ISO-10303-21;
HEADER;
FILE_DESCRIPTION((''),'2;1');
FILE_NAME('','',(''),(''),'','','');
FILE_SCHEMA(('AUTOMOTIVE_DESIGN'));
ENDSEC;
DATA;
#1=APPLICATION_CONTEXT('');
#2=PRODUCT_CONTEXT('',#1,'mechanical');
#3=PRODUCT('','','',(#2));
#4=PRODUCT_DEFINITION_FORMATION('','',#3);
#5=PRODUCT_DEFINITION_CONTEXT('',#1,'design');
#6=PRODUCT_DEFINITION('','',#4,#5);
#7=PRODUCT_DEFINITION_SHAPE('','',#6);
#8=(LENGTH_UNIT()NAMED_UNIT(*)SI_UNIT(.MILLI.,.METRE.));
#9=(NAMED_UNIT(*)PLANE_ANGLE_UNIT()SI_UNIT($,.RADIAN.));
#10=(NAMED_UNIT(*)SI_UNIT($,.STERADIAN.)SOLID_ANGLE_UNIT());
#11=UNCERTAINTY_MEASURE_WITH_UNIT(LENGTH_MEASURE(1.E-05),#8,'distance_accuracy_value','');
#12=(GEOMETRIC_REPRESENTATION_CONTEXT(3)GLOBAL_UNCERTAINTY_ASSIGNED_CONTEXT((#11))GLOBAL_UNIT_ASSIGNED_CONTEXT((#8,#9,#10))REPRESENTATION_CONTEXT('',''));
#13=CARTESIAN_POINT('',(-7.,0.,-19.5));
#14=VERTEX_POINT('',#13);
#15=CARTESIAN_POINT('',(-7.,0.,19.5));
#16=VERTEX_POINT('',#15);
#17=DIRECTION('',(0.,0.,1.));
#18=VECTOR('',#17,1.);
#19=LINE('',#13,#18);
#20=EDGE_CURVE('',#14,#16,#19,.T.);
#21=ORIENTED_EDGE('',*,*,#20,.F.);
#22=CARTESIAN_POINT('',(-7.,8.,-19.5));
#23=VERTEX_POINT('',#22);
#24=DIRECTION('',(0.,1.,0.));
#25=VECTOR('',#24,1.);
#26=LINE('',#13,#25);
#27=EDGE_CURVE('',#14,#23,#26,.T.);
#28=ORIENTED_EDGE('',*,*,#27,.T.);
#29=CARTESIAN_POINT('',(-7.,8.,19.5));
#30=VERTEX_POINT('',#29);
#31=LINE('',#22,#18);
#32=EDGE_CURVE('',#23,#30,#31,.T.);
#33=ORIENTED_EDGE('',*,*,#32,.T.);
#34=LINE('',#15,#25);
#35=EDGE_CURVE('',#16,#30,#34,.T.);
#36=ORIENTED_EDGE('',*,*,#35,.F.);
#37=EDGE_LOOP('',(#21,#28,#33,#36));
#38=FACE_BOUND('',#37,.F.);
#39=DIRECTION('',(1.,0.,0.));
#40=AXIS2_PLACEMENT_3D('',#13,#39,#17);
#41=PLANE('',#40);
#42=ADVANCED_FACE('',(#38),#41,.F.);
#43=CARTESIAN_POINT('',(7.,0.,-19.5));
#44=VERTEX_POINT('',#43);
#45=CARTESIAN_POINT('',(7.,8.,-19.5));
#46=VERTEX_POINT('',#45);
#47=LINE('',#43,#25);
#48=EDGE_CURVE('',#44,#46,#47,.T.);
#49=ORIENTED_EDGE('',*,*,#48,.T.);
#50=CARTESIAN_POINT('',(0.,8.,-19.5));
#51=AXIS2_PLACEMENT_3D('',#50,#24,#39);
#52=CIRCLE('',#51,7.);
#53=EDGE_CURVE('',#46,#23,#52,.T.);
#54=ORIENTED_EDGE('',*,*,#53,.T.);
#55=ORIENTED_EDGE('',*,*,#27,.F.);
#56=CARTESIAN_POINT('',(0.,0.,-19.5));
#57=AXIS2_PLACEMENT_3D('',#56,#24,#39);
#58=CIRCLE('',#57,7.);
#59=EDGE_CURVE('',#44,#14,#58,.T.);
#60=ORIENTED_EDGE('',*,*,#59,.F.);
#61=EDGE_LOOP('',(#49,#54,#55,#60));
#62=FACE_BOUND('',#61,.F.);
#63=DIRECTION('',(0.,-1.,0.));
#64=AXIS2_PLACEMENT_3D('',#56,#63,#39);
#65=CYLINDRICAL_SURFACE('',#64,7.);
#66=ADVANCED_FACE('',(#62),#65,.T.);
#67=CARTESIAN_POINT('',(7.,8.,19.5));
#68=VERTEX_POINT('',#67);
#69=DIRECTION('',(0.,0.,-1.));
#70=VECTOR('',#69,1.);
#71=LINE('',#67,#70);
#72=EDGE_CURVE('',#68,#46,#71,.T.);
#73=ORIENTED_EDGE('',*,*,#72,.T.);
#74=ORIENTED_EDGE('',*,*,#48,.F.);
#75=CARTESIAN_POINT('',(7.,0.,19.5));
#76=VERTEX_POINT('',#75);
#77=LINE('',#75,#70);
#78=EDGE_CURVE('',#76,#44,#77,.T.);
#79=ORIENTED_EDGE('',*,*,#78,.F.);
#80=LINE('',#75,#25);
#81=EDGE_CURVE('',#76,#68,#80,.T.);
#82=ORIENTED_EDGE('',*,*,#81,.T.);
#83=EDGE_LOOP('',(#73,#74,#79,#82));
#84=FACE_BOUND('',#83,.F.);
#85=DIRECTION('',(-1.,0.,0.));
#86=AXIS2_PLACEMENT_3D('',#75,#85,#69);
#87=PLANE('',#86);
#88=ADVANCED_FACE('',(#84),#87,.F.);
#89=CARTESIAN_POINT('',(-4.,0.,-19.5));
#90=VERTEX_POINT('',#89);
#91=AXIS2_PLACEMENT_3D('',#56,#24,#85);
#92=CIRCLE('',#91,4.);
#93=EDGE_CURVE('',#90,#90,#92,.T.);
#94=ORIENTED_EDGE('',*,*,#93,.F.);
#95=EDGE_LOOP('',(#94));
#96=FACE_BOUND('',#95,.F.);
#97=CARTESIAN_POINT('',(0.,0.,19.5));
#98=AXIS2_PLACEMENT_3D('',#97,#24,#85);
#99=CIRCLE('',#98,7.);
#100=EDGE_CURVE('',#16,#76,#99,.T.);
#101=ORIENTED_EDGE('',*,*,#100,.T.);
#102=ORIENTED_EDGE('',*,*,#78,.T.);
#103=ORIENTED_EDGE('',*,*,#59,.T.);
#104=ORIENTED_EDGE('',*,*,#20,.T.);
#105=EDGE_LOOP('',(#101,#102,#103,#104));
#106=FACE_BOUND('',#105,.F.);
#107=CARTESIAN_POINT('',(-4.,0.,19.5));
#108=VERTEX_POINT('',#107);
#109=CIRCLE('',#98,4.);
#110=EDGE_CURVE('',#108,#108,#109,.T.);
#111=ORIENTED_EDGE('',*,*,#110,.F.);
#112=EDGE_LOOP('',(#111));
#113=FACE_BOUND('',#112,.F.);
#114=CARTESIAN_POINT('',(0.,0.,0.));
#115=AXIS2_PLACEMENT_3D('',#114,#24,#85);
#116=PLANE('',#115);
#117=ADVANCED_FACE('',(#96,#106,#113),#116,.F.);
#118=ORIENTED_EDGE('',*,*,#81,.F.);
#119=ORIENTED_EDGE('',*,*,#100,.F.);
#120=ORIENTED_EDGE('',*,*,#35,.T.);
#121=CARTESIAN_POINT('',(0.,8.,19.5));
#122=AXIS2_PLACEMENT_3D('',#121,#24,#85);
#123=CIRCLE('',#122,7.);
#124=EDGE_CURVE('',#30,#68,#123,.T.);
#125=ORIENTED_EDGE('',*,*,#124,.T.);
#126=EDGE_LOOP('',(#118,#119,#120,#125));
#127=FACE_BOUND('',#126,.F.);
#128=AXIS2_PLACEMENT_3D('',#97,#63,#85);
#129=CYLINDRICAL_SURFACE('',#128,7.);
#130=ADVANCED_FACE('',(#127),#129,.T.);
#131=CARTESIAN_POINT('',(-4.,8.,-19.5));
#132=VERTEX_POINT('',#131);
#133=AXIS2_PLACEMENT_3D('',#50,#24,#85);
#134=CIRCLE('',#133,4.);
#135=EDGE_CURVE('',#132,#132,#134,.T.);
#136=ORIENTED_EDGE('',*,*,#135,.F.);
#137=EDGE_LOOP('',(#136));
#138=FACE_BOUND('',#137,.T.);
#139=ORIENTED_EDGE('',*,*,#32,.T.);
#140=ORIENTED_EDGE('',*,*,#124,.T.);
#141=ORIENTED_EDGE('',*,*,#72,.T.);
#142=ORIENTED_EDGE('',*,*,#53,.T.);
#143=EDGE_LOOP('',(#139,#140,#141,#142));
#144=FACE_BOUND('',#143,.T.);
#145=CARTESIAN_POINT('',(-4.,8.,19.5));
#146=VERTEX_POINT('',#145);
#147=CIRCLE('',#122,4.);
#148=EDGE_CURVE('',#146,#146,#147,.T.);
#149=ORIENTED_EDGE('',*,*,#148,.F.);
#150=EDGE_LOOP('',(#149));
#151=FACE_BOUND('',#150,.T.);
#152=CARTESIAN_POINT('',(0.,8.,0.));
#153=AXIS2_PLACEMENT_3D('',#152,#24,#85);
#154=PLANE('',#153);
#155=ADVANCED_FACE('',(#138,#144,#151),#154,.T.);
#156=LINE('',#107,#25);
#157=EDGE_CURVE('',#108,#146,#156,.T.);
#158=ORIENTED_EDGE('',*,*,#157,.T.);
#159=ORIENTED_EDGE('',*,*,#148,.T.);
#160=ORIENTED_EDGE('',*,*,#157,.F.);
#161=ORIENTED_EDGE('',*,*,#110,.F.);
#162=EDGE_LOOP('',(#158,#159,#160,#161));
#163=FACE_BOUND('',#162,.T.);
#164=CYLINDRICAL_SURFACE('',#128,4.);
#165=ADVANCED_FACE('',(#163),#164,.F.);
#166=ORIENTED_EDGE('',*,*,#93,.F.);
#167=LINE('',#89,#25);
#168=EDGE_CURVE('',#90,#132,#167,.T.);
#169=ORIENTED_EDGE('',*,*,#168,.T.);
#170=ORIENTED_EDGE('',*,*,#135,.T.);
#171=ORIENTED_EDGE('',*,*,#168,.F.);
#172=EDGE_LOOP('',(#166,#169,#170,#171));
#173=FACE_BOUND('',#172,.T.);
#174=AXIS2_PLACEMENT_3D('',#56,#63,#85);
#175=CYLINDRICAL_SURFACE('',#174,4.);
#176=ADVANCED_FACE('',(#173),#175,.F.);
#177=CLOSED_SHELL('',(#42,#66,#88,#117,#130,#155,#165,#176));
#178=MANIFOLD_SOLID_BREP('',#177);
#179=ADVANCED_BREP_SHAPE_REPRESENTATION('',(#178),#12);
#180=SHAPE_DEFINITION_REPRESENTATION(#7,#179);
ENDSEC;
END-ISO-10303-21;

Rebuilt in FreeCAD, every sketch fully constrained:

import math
import FreeCAD as App
import Part
import Sketcher
from FreeCAD import Vector
Q = App.Units.Quantity

doc = App.newDocument("Part")
body = doc.addObject("PartDesign::Body", "Body")

# Sketch on XZ plane
sketch1 = body.newObject("Sketcher::SketchObject", "Sketch")
sketch1.AttachmentSupport = (doc.getObject("XZ_Plane"), [""])
sketch1.MapMode = "FlatFace"
sketch1.addGeometry([
    Part.ArcOfCircle(Part.Circle(Vector(0, 19.5, 0), Vector(0, 0, 1), 7), math.radians(0), math.radians(180)),  # 0
    Part.LineSegment(Vector(7, 19.5, 0), Vector(7, -19.5, 0)),  # 1
    Part.ArcOfCircle(Part.Circle(Vector(0, -19.5, 0), Vector(0, 0, 1), 7), math.radians(180), math.radians(360)),  # 2
    Part.LineSegment(Vector(-7, -19.5, 0), Vector(-7, 19.5, 0)),  # 3
    Part.Circle(Vector(0, -19.5, 0), Vector(0, 0, 1), 4),  # 4
    Part.Circle(Vector(0, 19.5, 0), Vector(0, 0, 1), 4),  # 5
], False)
sketch1.addConstraint([
    Sketcher.Constraint("Tangent", 0, 1, 1, 1),
    Sketcher.Constraint("Tangent", 1, 2, 2, 2),
    Sketcher.Constraint("Tangent", 2, 1, 3, 1),
    Sketcher.Constraint("Tangent", 3, 2, 0, 2),
    Sketcher.Constraint("Vertical", 1),
    Sketcher.Constraint("Vertical", 3),
    Sketcher.Constraint("Coincident", 4, 3, 2, 3),
    Sketcher.Constraint("Coincident", 5, 3, 0, 3),
    Sketcher.Constraint("Equal", 4, 5),
    Sketcher.Constraint("Symmetric", 0, 3, 2, 3, -1, 1),
    Sketcher.Constraint("Diameter", 4, Q("8 mm")),
    Sketcher.Constraint("Radius", 0, Q("7 mm")),
    Sketcher.Constraint("DistanceY", 1, 2, 1, 1, Q("39 mm")),
])
pad1 = body.newObject("PartDesign::Pad", "Pad")
pad1.Profile = sketch1
pad1.Length = 8
pad1.Reversed = True

doc.recompute()
